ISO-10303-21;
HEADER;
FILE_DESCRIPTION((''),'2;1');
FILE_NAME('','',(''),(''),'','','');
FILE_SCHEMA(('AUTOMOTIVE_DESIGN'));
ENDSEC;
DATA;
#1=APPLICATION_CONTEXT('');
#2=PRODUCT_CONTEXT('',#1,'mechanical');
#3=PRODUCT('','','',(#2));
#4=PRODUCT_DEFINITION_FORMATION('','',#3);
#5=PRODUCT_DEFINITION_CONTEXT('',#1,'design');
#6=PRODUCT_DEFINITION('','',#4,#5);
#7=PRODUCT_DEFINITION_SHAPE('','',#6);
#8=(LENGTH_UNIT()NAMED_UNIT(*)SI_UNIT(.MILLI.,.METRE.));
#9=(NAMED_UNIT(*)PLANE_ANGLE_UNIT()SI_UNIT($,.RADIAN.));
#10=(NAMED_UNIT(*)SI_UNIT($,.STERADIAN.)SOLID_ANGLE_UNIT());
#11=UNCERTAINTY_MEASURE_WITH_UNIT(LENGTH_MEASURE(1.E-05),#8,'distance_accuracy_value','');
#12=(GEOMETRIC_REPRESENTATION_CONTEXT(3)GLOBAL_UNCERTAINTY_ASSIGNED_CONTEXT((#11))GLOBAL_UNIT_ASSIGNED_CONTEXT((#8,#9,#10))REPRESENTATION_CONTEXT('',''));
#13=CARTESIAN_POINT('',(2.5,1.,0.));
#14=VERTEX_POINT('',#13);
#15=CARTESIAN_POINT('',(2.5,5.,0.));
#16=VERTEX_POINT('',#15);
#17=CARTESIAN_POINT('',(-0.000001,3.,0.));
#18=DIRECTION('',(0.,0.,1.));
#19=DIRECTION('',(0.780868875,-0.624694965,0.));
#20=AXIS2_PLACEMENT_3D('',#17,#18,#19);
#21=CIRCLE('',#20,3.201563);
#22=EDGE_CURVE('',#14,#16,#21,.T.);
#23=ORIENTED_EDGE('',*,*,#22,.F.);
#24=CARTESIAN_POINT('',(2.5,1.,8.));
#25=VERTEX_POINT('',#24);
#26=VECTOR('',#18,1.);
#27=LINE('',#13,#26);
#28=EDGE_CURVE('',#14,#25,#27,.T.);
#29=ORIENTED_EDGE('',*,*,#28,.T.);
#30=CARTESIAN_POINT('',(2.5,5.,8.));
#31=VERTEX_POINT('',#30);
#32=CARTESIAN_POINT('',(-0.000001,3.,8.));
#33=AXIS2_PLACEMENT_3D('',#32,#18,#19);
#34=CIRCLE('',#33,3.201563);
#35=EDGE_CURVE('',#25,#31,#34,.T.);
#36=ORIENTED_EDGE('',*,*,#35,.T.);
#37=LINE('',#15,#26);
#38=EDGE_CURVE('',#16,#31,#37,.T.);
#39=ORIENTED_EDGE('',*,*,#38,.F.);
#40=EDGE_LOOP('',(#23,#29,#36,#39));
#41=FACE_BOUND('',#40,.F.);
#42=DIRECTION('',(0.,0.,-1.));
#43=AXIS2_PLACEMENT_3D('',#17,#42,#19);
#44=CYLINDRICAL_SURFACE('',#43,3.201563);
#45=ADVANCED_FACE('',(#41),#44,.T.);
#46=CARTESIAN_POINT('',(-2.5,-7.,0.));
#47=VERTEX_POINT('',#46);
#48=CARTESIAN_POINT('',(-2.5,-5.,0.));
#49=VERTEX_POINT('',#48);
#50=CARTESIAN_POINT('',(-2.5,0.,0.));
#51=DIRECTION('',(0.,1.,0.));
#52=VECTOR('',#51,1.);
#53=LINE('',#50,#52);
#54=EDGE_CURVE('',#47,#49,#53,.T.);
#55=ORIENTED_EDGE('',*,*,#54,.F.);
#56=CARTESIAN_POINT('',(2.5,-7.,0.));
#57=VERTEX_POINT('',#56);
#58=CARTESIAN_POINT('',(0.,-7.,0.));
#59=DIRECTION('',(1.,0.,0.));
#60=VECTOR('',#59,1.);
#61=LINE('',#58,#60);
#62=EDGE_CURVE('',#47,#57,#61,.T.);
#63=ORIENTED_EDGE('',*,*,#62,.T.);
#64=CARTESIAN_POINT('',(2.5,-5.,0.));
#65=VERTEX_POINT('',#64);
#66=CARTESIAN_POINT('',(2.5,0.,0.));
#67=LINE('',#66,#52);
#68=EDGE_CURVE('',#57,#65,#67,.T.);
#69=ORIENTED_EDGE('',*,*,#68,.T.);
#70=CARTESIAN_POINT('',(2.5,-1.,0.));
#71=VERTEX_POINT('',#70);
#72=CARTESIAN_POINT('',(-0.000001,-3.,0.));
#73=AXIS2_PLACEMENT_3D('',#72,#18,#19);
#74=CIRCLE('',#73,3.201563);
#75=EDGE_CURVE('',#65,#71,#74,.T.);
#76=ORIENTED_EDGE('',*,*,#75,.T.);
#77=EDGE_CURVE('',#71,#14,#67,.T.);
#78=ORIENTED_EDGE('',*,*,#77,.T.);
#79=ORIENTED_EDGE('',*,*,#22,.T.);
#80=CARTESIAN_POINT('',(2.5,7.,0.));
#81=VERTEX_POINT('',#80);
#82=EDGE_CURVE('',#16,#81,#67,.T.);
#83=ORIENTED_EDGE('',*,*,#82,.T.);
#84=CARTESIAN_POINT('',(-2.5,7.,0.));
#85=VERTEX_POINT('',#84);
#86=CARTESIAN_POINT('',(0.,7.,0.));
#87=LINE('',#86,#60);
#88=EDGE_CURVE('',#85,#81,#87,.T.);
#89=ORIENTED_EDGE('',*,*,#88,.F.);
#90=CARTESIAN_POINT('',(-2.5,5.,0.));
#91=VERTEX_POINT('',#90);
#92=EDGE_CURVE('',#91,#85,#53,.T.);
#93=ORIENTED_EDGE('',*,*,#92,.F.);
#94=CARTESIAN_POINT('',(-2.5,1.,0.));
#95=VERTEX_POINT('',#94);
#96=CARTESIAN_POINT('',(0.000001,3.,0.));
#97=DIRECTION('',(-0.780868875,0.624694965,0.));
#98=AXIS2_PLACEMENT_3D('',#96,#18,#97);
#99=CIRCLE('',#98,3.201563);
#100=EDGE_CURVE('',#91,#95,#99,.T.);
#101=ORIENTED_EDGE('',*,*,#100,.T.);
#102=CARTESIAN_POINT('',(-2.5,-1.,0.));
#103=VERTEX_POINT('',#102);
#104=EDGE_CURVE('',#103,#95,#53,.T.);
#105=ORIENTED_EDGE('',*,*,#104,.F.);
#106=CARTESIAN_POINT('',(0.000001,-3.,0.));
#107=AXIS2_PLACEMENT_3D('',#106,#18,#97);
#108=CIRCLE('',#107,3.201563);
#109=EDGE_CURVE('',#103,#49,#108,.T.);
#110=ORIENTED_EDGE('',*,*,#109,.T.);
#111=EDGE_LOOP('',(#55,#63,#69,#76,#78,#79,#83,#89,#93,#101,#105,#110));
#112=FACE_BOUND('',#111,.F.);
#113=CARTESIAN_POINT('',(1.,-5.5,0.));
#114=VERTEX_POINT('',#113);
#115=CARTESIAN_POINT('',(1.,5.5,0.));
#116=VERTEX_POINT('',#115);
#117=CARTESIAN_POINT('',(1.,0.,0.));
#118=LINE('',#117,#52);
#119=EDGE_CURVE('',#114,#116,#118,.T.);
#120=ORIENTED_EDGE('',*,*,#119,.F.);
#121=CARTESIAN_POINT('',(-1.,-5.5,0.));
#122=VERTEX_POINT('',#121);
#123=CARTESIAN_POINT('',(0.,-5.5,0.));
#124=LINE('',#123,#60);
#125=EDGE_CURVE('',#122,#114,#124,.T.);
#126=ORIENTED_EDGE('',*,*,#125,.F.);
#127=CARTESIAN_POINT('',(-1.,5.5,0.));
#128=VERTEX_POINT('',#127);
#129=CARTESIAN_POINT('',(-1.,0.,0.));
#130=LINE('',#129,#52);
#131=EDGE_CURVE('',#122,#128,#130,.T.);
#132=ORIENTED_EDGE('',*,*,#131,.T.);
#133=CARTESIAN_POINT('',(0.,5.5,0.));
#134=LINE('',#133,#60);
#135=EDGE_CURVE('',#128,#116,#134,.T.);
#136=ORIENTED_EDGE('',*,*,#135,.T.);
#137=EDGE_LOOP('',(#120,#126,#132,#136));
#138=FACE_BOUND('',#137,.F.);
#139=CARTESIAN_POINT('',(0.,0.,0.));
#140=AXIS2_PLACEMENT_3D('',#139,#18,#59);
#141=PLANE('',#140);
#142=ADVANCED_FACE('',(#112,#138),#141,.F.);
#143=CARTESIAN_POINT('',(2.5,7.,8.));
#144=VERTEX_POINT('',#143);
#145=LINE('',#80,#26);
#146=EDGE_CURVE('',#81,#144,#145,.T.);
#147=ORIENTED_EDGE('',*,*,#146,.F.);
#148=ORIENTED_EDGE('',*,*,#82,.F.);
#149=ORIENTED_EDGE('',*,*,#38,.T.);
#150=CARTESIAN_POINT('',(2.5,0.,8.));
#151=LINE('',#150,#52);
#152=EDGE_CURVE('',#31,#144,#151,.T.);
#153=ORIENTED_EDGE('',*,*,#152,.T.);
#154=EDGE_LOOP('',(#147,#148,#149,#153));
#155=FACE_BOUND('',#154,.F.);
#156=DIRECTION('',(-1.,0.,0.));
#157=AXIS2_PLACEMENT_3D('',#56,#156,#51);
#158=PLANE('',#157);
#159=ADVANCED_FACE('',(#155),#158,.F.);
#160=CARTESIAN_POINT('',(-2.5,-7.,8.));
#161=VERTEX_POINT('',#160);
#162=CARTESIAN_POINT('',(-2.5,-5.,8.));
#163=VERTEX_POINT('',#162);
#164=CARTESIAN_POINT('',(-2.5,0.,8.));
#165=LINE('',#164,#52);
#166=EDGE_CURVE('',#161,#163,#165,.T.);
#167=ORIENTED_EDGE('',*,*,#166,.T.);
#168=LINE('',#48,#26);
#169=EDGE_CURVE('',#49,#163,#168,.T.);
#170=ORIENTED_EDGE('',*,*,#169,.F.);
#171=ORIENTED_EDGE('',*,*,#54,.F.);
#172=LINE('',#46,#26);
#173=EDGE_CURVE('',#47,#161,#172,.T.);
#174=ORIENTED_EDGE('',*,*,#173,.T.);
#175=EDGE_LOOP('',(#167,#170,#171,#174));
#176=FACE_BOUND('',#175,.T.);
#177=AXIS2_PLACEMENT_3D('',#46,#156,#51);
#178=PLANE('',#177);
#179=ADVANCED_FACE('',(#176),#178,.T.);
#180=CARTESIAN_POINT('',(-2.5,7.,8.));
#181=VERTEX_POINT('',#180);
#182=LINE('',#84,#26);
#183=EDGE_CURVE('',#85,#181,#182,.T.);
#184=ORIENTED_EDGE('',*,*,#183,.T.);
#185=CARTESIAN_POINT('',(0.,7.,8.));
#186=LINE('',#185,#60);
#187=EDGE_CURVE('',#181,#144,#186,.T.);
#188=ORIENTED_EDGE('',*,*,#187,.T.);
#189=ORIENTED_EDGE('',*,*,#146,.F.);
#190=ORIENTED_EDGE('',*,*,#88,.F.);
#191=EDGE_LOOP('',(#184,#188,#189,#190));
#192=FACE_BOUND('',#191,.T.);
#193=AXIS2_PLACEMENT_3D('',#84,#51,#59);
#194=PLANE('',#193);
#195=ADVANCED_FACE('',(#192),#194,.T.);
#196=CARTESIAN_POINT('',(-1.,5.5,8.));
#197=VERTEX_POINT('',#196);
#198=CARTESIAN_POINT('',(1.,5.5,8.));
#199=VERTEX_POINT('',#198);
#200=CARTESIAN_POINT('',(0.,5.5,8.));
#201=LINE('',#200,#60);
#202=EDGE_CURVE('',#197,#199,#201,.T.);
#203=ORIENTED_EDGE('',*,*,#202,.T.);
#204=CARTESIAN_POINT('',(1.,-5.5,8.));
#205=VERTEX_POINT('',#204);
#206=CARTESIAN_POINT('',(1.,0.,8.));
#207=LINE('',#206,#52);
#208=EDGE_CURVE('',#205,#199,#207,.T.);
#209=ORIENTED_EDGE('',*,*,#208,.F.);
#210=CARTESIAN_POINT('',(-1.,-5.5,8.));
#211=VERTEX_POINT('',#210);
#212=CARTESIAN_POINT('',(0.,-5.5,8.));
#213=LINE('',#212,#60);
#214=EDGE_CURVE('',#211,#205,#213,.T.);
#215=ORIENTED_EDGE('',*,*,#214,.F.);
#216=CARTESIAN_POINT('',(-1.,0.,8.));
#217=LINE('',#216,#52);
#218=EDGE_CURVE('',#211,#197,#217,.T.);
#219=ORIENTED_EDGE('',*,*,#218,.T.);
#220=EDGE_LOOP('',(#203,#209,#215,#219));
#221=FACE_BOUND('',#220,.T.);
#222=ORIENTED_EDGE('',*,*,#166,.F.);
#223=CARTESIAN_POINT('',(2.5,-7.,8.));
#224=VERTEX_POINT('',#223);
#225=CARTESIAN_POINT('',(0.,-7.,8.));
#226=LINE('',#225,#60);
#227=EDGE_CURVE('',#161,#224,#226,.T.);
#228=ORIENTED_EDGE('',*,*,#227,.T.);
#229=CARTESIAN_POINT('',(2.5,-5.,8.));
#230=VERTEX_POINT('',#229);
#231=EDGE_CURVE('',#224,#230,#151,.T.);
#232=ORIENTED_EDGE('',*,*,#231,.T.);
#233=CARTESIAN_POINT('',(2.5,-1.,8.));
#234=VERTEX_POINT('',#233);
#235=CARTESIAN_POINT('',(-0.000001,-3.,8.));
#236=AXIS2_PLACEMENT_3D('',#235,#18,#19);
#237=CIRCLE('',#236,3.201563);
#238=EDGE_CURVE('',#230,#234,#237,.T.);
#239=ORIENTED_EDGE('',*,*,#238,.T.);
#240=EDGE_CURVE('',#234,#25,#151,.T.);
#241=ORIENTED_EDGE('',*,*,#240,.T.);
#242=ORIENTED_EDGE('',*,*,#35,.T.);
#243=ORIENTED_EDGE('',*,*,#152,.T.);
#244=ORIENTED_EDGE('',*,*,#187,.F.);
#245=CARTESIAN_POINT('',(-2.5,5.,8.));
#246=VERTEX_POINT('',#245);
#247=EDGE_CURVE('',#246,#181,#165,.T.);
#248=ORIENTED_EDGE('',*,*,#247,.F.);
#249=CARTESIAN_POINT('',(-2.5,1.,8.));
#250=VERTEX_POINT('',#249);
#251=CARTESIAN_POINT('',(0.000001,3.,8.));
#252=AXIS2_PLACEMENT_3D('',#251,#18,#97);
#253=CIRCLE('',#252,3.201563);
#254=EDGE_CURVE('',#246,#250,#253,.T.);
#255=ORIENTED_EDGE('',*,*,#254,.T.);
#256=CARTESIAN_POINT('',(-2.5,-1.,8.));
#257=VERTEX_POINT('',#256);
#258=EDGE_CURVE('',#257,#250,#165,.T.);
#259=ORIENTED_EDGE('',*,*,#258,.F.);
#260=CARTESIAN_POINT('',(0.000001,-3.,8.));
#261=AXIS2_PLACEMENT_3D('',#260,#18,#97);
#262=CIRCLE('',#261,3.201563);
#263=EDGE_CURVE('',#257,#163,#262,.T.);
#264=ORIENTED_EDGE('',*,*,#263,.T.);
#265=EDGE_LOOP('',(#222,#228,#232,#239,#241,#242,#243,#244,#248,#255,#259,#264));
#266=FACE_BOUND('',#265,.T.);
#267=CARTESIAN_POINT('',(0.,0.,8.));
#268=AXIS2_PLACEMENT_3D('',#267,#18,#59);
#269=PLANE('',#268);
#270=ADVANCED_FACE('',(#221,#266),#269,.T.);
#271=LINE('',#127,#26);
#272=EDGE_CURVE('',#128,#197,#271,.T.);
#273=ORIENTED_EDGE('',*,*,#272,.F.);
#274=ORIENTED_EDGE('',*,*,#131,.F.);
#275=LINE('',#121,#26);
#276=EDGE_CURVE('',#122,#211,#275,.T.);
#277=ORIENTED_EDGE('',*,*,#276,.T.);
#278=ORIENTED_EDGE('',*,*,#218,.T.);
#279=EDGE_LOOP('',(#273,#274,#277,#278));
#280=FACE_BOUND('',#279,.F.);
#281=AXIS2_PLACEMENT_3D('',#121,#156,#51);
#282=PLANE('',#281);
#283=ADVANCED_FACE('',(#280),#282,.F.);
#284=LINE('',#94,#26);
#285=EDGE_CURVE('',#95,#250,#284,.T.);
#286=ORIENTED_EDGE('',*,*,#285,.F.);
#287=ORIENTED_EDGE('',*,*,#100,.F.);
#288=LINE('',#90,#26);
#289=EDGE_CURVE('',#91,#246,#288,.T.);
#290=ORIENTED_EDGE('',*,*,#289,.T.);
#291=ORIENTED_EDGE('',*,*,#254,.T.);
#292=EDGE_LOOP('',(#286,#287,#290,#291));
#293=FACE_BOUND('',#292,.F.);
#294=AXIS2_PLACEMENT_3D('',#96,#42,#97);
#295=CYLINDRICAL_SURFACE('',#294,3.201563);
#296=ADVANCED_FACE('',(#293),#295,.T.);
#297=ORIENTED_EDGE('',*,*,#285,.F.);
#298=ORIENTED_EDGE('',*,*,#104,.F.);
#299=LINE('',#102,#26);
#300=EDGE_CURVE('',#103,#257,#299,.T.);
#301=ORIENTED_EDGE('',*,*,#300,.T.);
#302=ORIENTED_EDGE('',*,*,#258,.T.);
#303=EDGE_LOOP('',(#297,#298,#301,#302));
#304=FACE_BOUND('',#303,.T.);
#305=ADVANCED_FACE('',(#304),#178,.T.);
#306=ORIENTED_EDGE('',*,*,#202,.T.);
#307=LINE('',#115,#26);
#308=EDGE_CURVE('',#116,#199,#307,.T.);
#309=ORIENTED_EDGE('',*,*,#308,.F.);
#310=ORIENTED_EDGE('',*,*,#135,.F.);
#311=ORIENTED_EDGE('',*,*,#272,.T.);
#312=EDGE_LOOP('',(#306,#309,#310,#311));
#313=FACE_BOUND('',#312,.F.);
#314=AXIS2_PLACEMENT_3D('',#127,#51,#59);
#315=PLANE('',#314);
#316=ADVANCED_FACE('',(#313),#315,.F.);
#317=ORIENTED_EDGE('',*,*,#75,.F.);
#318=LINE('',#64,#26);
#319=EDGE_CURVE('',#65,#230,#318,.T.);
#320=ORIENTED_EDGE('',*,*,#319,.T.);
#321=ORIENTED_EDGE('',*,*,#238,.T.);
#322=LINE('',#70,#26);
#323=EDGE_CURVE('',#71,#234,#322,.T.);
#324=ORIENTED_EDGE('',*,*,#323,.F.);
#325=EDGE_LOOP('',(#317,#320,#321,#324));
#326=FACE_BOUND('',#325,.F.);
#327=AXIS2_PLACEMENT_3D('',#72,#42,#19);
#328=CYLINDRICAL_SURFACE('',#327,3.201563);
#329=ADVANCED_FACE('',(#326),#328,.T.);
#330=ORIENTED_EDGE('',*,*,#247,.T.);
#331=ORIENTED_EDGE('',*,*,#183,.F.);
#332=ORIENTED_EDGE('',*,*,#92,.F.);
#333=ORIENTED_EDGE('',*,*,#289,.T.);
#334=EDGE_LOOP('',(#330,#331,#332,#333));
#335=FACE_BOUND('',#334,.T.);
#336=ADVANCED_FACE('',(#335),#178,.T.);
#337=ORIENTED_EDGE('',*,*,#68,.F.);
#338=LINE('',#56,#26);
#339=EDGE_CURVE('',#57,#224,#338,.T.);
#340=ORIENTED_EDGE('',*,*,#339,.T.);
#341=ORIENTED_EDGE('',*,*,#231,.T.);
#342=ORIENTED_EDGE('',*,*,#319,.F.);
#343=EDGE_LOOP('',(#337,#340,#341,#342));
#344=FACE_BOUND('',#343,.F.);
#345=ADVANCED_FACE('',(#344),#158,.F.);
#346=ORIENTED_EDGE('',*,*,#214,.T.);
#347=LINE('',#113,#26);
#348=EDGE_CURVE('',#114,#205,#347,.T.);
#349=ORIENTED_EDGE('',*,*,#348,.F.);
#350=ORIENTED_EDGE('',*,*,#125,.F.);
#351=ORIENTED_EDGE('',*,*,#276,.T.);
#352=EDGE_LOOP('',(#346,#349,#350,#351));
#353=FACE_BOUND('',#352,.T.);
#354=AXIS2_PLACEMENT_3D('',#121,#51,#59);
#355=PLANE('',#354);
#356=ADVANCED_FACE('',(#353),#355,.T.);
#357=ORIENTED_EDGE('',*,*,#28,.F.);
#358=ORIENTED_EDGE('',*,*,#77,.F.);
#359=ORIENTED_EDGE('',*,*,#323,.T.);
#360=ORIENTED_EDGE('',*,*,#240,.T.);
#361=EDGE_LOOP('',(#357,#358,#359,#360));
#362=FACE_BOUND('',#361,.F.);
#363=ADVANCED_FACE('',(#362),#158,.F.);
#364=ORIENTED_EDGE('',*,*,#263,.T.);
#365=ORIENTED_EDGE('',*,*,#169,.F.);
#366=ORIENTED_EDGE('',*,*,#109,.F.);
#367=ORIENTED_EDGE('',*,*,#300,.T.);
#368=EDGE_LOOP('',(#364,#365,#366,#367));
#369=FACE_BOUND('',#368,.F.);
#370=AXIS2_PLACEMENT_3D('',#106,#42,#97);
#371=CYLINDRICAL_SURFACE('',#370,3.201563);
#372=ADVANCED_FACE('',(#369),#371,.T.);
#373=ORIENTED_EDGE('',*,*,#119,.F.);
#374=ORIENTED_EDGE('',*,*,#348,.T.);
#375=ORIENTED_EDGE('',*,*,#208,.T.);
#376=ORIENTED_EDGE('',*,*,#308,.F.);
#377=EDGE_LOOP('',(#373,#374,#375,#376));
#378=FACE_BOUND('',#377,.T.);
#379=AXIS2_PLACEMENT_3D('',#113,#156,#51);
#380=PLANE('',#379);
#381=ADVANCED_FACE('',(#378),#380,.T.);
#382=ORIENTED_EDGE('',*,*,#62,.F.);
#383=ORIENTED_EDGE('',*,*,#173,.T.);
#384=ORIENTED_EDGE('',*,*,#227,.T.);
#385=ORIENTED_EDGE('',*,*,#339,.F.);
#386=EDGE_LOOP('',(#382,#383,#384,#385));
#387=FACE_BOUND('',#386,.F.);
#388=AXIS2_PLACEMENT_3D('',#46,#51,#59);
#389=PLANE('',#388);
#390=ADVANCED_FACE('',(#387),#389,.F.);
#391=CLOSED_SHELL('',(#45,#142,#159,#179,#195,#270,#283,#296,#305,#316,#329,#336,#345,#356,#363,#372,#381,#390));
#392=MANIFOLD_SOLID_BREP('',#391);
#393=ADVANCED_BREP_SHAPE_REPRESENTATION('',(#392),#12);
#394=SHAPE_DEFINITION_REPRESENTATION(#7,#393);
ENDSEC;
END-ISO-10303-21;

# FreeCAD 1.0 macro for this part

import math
import FreeCAD as App
import Part
import Sketcher

V = App.Vector
Q = App.Units.Quantity


def add_polygon(sketch, points):
    """Adds a closed chain of lines whose ends are joined by coincident constraints."""
    first, n = sketch.GeometryCount, len(points)
    for a, b in zip(points, points[1:] + points[:1]):
        sketch.addGeometry(Part.LineSegment(App.Vector(*a, 0), App.Vector(*b, 0)), False)
    for i in range(n):
        sketch.addConstraint(Sketcher.Constraint("Coincident", first + i, 2, first + (i + 1) % n, 1))

doc = App.newDocument("Part")
params = doc.addObject("Spreadsheet::Sheet", "Params")
for row, (alias, value) in enumerate([
    ("sketch1_width", "5 mm"),
    ("sketch1_width2", "2 mm"),
    ("sketch1_height", "14 mm"),
    ("sketch1_height2", "11 mm"),
    ("pad1_length", "8 mm"),
    ("sketch2_height", "4 mm"),
    ("pad2_length", "8 mm"),
], start=1):
    params.set(f"A{row}", alias)
    params.set(f"B{row}", "=" + value)
    params.setAlias(f"B{row}", alias)

body = doc.addObject("PartDesign::Body", "Body")

# Sketch on XY plane
sketch1 = body.newObject("Sketcher::SketchObject", "Sketch")
sketch1.AttachmentSupport = (doc.getObject("XY_Plane"), [""])
sketch1.MapMode = "FlatFace"
add_polygon(sketch1, [(-2.5, 7), (-2.5, -7), (2.5, -7), (2.5, 7)])  # lines 0-3
add_polygon(sketch1, [(1, -5.5), (-1, -5.5), (-1, 5.5), (1, 5.5)])  # lines 4-7
sketch1.addConstraint([
    Sketcher.Constraint("Vertical", 0),
    Sketcher.Constraint("Horizontal", 1),
    Sketcher.Constraint("Vertical", 2),
    Sketcher.Constraint("Horizontal", 3),
    Sketcher.Constraint("Horizontal", 4),
    Sketcher.Constraint("Vertical", 5),
    Sketcher.Constraint("Horizontal", 6),
    Sketcher.Constraint("Vertical", 7),
    Sketcher.Constraint("Symmetric", 0, 2, 2, 2, -1, 1),
    Sketcher.Constraint("Symmetric", 4, 2, 6, 2, -1, 1),
    Sketcher.Constraint("DistanceX", 1, 1, 1, 2, Q("5 mm")),
    Sketcher.Constraint("DistanceX", 4, 2, 4, 1, Q("2 mm")),
    Sketcher.Constraint("DistanceY", 0, 2, 0, 1, Q("14 mm")),
    Sketcher.Constraint("DistanceY", 5, 1, 5, 2, Q("11 mm")),
])
sketch1.setExpression("Constraints[18]", "Params.sketch1_width")
sketch1.setExpression("Constraints[19]", "Params.sketch1_width2")
sketch1.setExpression("Constraints[20]", "Params.sketch1_height")
sketch1.setExpression("Constraints[21]", "Params.sketch1_height2")
pad1 = body.newObject("PartDesign::Pad", "Pad")
pad1.Profile = sketch1
pad1.setExpression("Length", "Params.pad1_length")

# Sketch on XY plane
sketch2 = body.newObject("Sketcher::SketchObject", "Sketch001")
sketch2.AttachmentSupport = (doc.getObject("XY_Plane"), [""])
sketch2.MapMode = "FlatFace"
sketch2.addGeometry([
    Part.LineSegment(V(2.5, 5, 0), V(2.5, 1, 0)),  # 0
    Part.ArcOfCircle(Part.Circle(V(0, 3, 0), V(0, 0, 1), 3.2), math.radians(-39), math.radians(39)),  # 1
    Part.LineSegment(V(2.5, -1, 0), V(2.5, -5, 0)),  # 2
    Part.ArcOfCircle(Part.Circle(V(0, -3, 0), V(0, 0, 1), 3.2), math.radians(-39), math.radians(39)),  # 3
    Part.LineSegment(V(-2.5, 1, 0), V(-2.5, 5, 0)),  # 4
    Part.ArcOfCircle(Part.Circle(V(0, 3, 0), V(0, 0, 1), 3.2), math.radians(141), math.radians(219)),  # 5
    Part.LineSegment(V(-2.5, -5, 0), V(-2.5, -1, 0)),  # 6
    Part.ArcOfCircle(Part.Circle(V(0, -3, 0), V(0, 0, 1), 3.2), math.radians(141), math.radians(219)),  # 7
], False)
sketch2.addConstraint([
    Sketcher.Constraint("Coincident", 0, 1, 1, 2),
    Sketcher.Constraint("Coincident", 1, 1, 0, 2),
    Sketcher.Constraint("Coincident", 2, 1, 3, 2),
    Sketcher.Constraint("Coincident", 3, 1, 2, 2),
    Sketcher.Constraint("Coincident", 4, 1, 5, 2),
    Sketcher.Constraint("Coincident", 5, 1, 4, 2),
    Sketcher.Constraint("Coincident", 6, 1, 7, 2),
    Sketcher.Constraint("Coincident", 7, 1, 6, 2),
    Sketcher.Constraint("Vertical", 0),
    Sketcher.Constraint("Vertical", 2),
    Sketcher.Constraint("Vertical", 4),
    Sketcher.Constraint("Vertical", 6),
    Sketcher.Constraint("Coincident", 5, 3, 1, 3),
    Sketcher.Constraint("Coincident", 7, 3, 3, 3),
    Sketcher.Constraint("Equal", 1, 3),
    Sketcher.Constraint("Equal", 3, 5),
    Sketcher.Constraint("Equal", 5, 7),
    Sketcher.Constraint("Symmetric", 1, 3, 3, 3, -1, 1),
    Sketcher.Constraint("Symmetric", 1, 1, 4, 1, -2),
    Sketcher.Constraint("Horizontal", 3, 1, 6, 1),
    Sketcher.Constraint("Vertical", 1, 1, 2, 1),
    Sketcher.Constraint("DistanceY", 0, 2, 0, 1, Q("4 mm")),
    Sketcher.Constraint("DistanceY", -1, 1, 1, 3, Q("3 mm")),
    Sketcher.Constraint("DistanceX", 4, 1, 1, 1, Q("5 mm")),
])
sketch2.setExpression("Constraints[21]", "Params.sketch2_height")
pad2 = body.newObject("PartDesign::Pad", "Pad001")
pad2.Profile = sketch2
pad2.setExpression("Length", "Params.pad2_length")

doc.recompute()
